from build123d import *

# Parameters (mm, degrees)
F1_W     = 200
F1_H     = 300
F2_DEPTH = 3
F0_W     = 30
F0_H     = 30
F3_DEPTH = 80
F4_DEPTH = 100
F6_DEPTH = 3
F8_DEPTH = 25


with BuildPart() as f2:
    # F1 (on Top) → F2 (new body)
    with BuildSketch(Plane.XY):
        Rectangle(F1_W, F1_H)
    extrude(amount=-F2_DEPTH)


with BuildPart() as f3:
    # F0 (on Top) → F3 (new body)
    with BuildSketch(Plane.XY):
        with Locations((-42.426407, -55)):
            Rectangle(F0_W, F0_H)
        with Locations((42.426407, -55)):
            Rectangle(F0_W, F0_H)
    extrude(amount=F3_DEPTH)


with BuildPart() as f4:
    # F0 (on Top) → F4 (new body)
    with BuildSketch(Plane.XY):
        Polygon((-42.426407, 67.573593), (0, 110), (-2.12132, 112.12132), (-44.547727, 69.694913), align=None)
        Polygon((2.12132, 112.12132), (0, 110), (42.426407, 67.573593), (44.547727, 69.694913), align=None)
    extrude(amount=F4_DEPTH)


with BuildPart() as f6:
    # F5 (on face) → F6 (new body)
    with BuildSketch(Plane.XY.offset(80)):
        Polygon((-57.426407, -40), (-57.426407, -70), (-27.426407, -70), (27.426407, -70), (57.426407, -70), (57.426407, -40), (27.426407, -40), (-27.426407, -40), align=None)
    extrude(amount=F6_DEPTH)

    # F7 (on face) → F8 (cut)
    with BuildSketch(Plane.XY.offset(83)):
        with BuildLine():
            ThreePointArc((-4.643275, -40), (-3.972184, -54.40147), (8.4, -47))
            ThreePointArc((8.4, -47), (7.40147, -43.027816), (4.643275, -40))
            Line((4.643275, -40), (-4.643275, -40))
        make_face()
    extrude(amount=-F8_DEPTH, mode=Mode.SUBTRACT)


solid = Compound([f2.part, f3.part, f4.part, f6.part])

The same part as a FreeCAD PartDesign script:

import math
import FreeCAD as App
import Part
import Sketcher
Q = App.Units.Quantity

doc = App.newDocument("Part")
params = doc.addObject("Spreadsheet::Sheet", "Params")
for row, (alias, value) in enumerate([
    ("sketch1_width", "200 mm"),
    ("sketch1_height", "300 mm"),
    ("pad1_length", "3 mm"),
    ("sketch2_width", "30 mm"),
    ("pad2_length", "80 mm"),
    ("sketch3_length", "60 mm"),
    ("sketch3_length2", "3 mm"),
    ("pad3_length", "100 mm"),
    ("sketch4_height", "30 mm"),
    ("pad4_length", "3 mm"),
    ("sketch5_radius", "8.4 mm"),
    ("pocket1_length", "25 mm"),
], start=1):
    params.set(f"A{row}", alias)
    params.set(f"B{row}", "=" + value)
    params.setAlias(f"B{row}", alias)

body = doc.addObject("PartDesign::Body", "Body")

# Sketch on XY plane
sketch1 = body.newObject("Sketcher::SketchObject", "Sketch")
sketch1.AttachmentSupport = (doc.getObject("XY_Plane"), [""])
sketch1.MapMode = "FlatFace"
sketch1.addGeometry([
    Part.LineSegment(App.Vector(-100, 150, 0), App.Vector(-100, -150, 0)),
    Part.LineSegment(App.Vector(-100, -150, 0), App.Vector(100, -150, 0)),
    Part.LineSegment(App.Vector(100, -150, 0), App.Vector(100, 150, 0)),
    Part.LineSegment(App.Vector(100, 150, 0), App.Vector(-100, 150, 0)),
], False)
sketch1.addConstraint([
    Sketcher.Constraint("Coincident", 0, 2, 1, 1),
    Sketcher.Constraint("Coincident", 1, 2, 2, 1),
    Sketcher.Constraint("Coincident", 2, 2, 3, 1),
    Sketcher.Constraint("Coincident", 3, 2, 0, 1),
    Sketcher.Constraint("Vertical", 0),
    Sketcher.Constraint("Horizontal", 1),
    Sketcher.Constraint("Vertical", 2),
    Sketcher.Constraint("Horizontal", 3),
    Sketcher.Constraint("Symmetric", 0, 2, 2, 2, -1, 1),
    Sketcher.Constraint("DistanceX", 1, 1, 1, 2, Q("200 mm")),
    Sketcher.Constraint("DistanceY", 0, 2, 0, 1, Q("300 mm")),
])
sketch1.setExpression("Constraints[9]", "Params.sketch1_width")
sketch1.setExpression("Constraints[10]", "Params.sketch1_height")
pad1 = body.newObject("PartDesign::Pad", "Pad")
pad1.Profile = sketch1
pad1.setExpression("Length", "Params.pad1_length")
pad1.Reversed = True
body2 = doc.addObject("PartDesign::Body", "Body001")
body2.AllowCompound = True

# Sketch on XY plane
sketch2 = body2.newObject("Sketcher::SketchObject", "Sketch001")
sketch2.AttachmentSupport = (doc.getObject("XY_Plane001"), [""])
sketch2.MapMode = "FlatFace"
sketch2.addGeometry([
    Part.LineSegment(App.Vector(-57, -40, 0), App.Vector(-57, -70, 0)),  # 0
    Part.LineSegment(App.Vector(-57, -70, 0), App.Vector(-27, -70, 0)),  # 1
    Part.LineSegment(App.Vector(-27, -70, 0), App.Vector(-27, -40, 0)),  # 2
    Part.LineSegment(App.Vector(-27, -40, 0), App.Vector(-57, -40, 0)),  # 3
    Part.LineSegment(App.Vector(27, -40, 0), App.Vector(27, -70, 0)),  # 4
    Part.LineSegment(App.Vector(27, -70, 0), App.Vector(57, -70, 0)),  # 5
    Part.LineSegment(App.Vector(57, -70, 0), App.Vector(57, -40, 0)),  # 6
    Part.LineSegment(App.Vector(57, -40, 0), App.Vector(27, -40, 0)),  # 7
], False)
sketch2.addConstraint([
    Sketcher.Constraint("Coincident", 0, 2, 1, 1),
    Sketcher.Constraint("Coincident", 1, 2, 2, 1),
    Sketcher.Constraint("Coincident", 2, 2, 3, 1),
    Sketcher.Constraint("Coincident", 3, 2, 0, 1),
    Sketcher.Constraint("Coincident", 4, 2, 5, 1),
    Sketcher.Constraint("Coincident", 5, 2, 6, 1),
    Sketcher.Constraint("Coincident", 6, 2, 7, 1),
    Sketcher.Constraint("Coincident", 7, 2, 4, 1),
    Sketcher.Constraint("Vertical", 0),
    Sketcher.Constraint("Horizontal", 1),
    Sketcher.Constraint("Vertical", 2),
    Sketcher.Constraint("Horizontal", 3),
    Sketcher.Constraint("Vertical", 4),
    Sketcher.Constraint("Horizontal", 5),
    Sketcher.Constraint("Vertical", 6),
    Sketcher.Constraint("Horizontal", 7),
    Sketcher.Constraint("Symmetric", 1, 2, 4, 2, -2),
    Sketcher.Constraint("Symmetric", 3, 2, 6, 2, -2),
    Sketcher.Constraint("Equal", 7, 0),
    Sketcher.Constraint("DistanceX", 1, 1, 1, 2, Q("30 mm")),
    Sketcher.Constraint("DistanceY", 0, 2, -1, 1, Q("70 mm")),
    Sketcher.Constraint("DistanceX", 0, 2, -1, 1, Q("57.426407 mm")),
])
sketch2.setExpression("Constraints[19]", "Params.sketch2_width")
pad2 = body2.newObject("PartDesign::Pad", "Pad001")
pad2.Profile = sketch2
pad2.setExpression("Length", "Params.pad2_length")
body3 = doc.addObject("PartDesign::Body", "Body002")
body3.AllowCompound = True

# Sketch on XY plane
sketch3 = body3.newObject("Sketcher::SketchObject", "Sketch002")
sketch3.AttachmentSupport = (doc.getObject("XY_Plane002"), [""])
sketch3.MapMode = "FlatFace"
sketch3.addGeometry([
    Part.LineSegment(App.Vector(-42.4, 67.6, 0), App.Vector(0, 110, 0)),  # 0
    Part.LineSegment(App.Vector(0, 110, 0), App.Vector(-2.1, 112.1, 0)),  # 1
    Part.LineSegment(App.Vector(-2.1, 112.1, 0), App.Vector(-44.5, 69.7, 0)),  # 2
    Part.LineSegment(App.Vector(-44.5, 69.7, 0), App.Vector(-42.4, 67.6, 0)),  # 3
    Part.LineSegment(App.Vector(2.1, 112.1, 0), App.Vector(0, 110, 0)),  # 4
    Part.LineSegment(App.Vector(0, 110, 0), App.Vector(42.4, 67.6, 0)),  # 5
    Part.LineSegment(App.Vector(42.4, 67.6, 0), App.Vector(44.5, 69.7, 0)),  # 6
    Part.LineSegment(App.Vector(44.5, 69.7, 0), App.Vector(2.1, 112.1, 0)),  # 7
], False)
sketch3.addConstraint([
    Sketcher.Constraint("Coincident", 0, 2, 1, 1),
    Sketcher.Constraint("Coincident", 1, 2, 2, 1),
    Sketcher.Constraint("Coincident", 2, 2, 3, 1),
    Sketcher.Constraint("Coincident", 3, 2, 0, 1),
    Sketcher.Constraint("Coincident", 4, 2, 5, 1),
    Sketcher.Constraint("Coincident", 5, 2, 6, 1),
    Sketcher.Constraint("Coincident", 6, 2, 7, 1),
    Sketcher.Constraint("Coincident", 7, 2, 4, 1),
    Sketcher.Constraint("Coincident", 4, 2, 0, 2),
    Sketcher.Constraint("Symmetric", 3, 2, 5, 2, -2),
    Sketcher.Constraint("Symmetric", 2, 2, 6, 2, -2),
    Sketcher.Constraint("Symmetric", 1, 2, 7, 2, -2),
    Sketcher.Constraint("PointOnObject", 0, 2, -2),
    Sketcher.Constraint("Perpendicular", 0, 1),
    Sketcher.Constraint("Perpendicular", 1, 2),
    Sketcher.Constraint("Perpendicular", 2, 3),
    Sketcher.Constraint("Perpendicular", 3, 4),
    Sketcher.Constraint("Distance", 0, Q("60 mm")),
    Sketcher.Constraint("Distance", 1, Q("3 mm")),
    Sketcher.Constraint("DistanceY", -1, 1, 0, 2, Q("110 mm")),
])
sketch3.setExpression("Constraints[17]", "Params.sketch3_length")
sketch3.setExpression("Constraints[18]", "Params.sketch3_length2")
pad3 = body3.newObject("PartDesign::Pad", "Pad002")
pad3.Profile = sketch3
pad3.setExpression("Length", "Params.pad3_length")
body4 = doc.addObject("PartDesign::Body", "Body003")

# Sketch on XY plane
sketch4 = body4.newObject("Sketcher::SketchObject", "Sketch003")
sketch4.AttachmentSupport = (doc.getObject("XY_Plane003"), [""])
sketch4.MapMode = "FlatFace"
sketch4.AttachmentOffset = App.Placement(App.Vector(0, 0, 80), App.Rotation())
sketch4.addGeometry([
    Part.LineSegment(App.Vector(-57, -40, 0), App.Vector(-57, -70, 0)),
    Part.LineSegment(App.Vector(-57, -70, 0), App.Vector(57, -70, 0)),
    Part.LineSegment(App.Vector(57, -70, 0), App.Vector(57, -40, 0)),
    Part.LineSegment(App.Vector(57, -40, 0), App.Vector(-57, -40, 0)),
], False)
sketch4.addConstraint([
    Sketcher.Constraint("Coincident", 0, 2, 1, 1),
    Sketcher.Constraint("Coincident", 1, 2, 2, 1),
    Sketcher.Constraint("Coincident", 2, 2, 3, 1),
    Sketcher.Constraint("Coincident", 3, 2, 0, 1),
    Sketcher.Constraint("Vertical", 0),
    Sketcher.Constraint("Horizontal", 1),
    Sketcher.Constraint("Vertical", 2),
    Sketcher.Constraint("Horizontal", 3),
    Sketcher.Constraint("DistanceY", 0, 2, 0, 1, Q("30 mm")),
    Sketcher.Constraint("DistanceY", 0, 2, -1, 1, Q("70 mm")),
    Sketcher.Constraint("DistanceX", 1, 1, 1, 2, Q("114.852814 mm")),
    Sketcher.Constraint("DistanceX", 0, 2, -1, 1, Q("57.426407 mm")),
])
sketch4.setExpression("Constraints[8]", "Params.sketch4_height")
pad4 = body4.newObject("PartDesign::Pad", "Pad003")
pad4.Profile = sketch4
pad4.setExpression("Length", "Params.pad4_length")

# Sketch on XY plane
sketch5 = body4.newObject("Sketcher::SketchObject", "Sketch004")
sketch5.AttachmentSupport = (doc.getObject("XY_Plane003"), [""])
sketch5.MapMode = "FlatFace"
sketch5.AttachmentOffset = App.Placement(App.Vector(0, 0, 83), App.Rotation())
sketch5.addGeometry([
    Part.ArcOfCircle(Part.Circle(App.Vector(0, -47, 0), App.Vector(0, 0, 1), 8), math.radians(124), math.radians(360)),
    Part.ArcOfCircle(Part.Circle(App.Vector(0, -47, 0), App.Vector(0, 0, 1), 8), math.radians(0), math.radians(56)),
    Part.LineSegment(App.Vector(5, -40, 0), App.Vector(-5, -40, 0)),
], False)
sketch5.addConstraint([
    Sketcher.Constraint("Tangent", 0, 2, 1, 1),
    Sketcher.Constraint("Coincident", 1, 2, 2, 1),
    Sketcher.Constraint("Coincident", 2, 2, 0, 1),
    Sketcher.Constraint("Horizontal", 2),
    Sketcher.Constraint("Equal", 0, 1),
    Sketcher.Constraint("PointOnObject", 0, 3, -2),
    Sketcher.Constraint("Horizontal", 1, 3, 0, 2),
    Sketcher.Constraint("Radius", 0, Q("8.4 mm")),
    Sketcher.Constraint("DistanceY", 0, 3, -1, 1, Q("47 mm")),
    Sketcher.Constraint("DistanceY", 1, 2, -1, 1, Q("40 mm")),
])
sketch5.setExpression("Constraints[7]", "Params.sketch5_radius")
pocket1 = body4.newObject("PartDesign::Pocket", "Pocket")
pocket1.Profile = sketch5
pocket1.setExpression("Length", "Params.pocket1_length")

doc.recompute()
